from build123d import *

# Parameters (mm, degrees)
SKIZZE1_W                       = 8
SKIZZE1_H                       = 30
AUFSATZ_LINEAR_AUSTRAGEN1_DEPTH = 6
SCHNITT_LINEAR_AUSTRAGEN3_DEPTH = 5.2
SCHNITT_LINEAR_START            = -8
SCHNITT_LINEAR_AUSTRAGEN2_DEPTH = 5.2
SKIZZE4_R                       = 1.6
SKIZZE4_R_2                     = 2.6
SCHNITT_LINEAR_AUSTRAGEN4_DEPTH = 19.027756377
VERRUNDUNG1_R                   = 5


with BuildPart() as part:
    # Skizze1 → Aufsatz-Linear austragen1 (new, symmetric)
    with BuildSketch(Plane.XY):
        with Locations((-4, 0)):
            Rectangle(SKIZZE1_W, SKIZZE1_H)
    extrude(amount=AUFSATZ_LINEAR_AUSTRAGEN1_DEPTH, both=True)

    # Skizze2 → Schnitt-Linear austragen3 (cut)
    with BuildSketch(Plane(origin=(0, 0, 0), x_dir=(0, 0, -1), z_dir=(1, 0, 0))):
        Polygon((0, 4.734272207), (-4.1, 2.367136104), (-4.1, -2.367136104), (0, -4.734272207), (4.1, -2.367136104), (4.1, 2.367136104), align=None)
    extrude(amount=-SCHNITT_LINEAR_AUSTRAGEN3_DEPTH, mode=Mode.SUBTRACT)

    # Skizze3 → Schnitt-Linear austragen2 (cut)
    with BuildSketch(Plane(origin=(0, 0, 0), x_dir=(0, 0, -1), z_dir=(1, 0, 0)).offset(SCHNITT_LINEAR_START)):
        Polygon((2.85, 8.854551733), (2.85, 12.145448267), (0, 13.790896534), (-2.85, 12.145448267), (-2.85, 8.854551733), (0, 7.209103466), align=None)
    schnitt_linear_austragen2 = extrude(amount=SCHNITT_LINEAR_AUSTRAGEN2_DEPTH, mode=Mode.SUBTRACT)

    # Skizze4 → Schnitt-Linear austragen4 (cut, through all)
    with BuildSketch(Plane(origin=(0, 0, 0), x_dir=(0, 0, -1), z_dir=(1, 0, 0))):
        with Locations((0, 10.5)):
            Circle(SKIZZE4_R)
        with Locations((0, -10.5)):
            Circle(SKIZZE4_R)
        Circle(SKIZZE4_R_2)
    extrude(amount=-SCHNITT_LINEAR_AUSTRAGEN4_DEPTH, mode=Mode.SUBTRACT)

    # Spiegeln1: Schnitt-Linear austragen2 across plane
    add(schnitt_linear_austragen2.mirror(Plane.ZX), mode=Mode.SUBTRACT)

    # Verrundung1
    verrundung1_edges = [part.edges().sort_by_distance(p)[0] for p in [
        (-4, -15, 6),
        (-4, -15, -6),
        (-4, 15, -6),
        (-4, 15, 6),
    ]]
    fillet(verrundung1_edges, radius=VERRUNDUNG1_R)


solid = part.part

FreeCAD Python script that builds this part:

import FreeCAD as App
import Part
import Sketcher
from FreeCAD import Vector
Q = App.Units.Quantity


def edges_at(feature, points):
    """Names of the edges that pass closest to the given points."""
    edges = feature.Shape.Edges
    near = lambda p: min(range(len(edges)), key=lambda i: edges[i].distToShape(Part.Vertex(*p))[0])
    return sorted({f"Edge{near(p) + 1}" for p in points})

doc = App.newDocument("Part")
body = doc.addObject("PartDesign::Body", "Body")

# Sketch on XY plane
sketch1 = body.newObject("Sketcher::SketchObject", "Sketch")
sketch1.AttachmentSupport = (doc.getObject("XY_Plane"), [""])
sketch1.MapMode = "FlatFace"
sketch1.addGeometry([
    Part.LineSegment(Vector(-8, 15, 0), Vector(-8, -15, 0)),
    Part.LineSegment(Vector(-8, -15, 0), Vector(0, -15, 0)),
    Part.LineSegment(Vector(0, -15, 0), Vector(0, 15, 0)),
    Part.LineSegment(Vector(0, 15, 0), Vector(-8, 15, 0)),
], False)
sketch1.addConstraint([
    Sketcher.Constraint("Coincident", 0, 2, 1, 1),
    Sketcher.Constraint("Coincident", 1, 2, 2, 1),
    Sketcher.Constraint("Coincident", 2, 2, 3, 1),
    Sketcher.Constraint("Coincident", 3, 2, 0, 1),
    Sketcher.Constraint("Vertical", 0),
    Sketcher.Constraint("Horizontal", 1),
    Sketcher.Constraint("Vertical", 2),
    Sketcher.Constraint("Horizontal", 3),
    Sketcher.Constraint("Symmetric", 1, 2, 2, 2, -1, 1),
    Sketcher.Constraint("DistanceX", 1, 1, 1, 2, Q("8 mm")),
    Sketcher.Constraint("DistanceY", 0, 2, 0, 1, Q("30 mm")),
])
pad1 = body.newObject("PartDesign::Pad", "Pad")
pad1.Profile = sketch1
pad1.Length = 12
pad1.Midplane = True

# Sketch on YZ plane
sketch2 = body.newObject("Sketcher::SketchObject", "Sketch001")
sketch2.AttachmentSupport = (doc.getObject("YZ_Plane"), [""])
sketch2.MapMode = "FlatFace"
sketch2.addGeometry([
    Part.LineSegment(Vector(4.7, 0, 0), Vector(2.4, 4.1, 0)),  # 0
    Part.LineSegment(Vector(2.4, 4.1, 0), Vector(-2.4, 4.1, 0)),  # 1
    Part.LineSegment(Vector(-2.4, 4.1, 0), Vector(-4.7, 0, 0)),  # 2
    Part.LineSegment(Vector(-4.7, 0, 0), Vector(-2.4, -4.1, 0)),  # 3
    Part.LineSegment(Vector(-2.4, -4.1, 0), Vector(2.4, -4.1, 0)),  # 4
    Part.LineSegment(Vector(2.4, -4.1, 0), Vector(4.7, 0, 0)),  # 5
], False)
sketch2.addConstraint([
    Sketcher.Constraint("Coincident", 0, 2, 1, 1),
    Sketcher.Constraint("Coincident", 1, 2, 2, 1),
    Sketcher.Constraint("Coincident", 2, 2, 3, 1),
    Sketcher.Constraint("Coincident", 3, 2, 4, 1),
    Sketcher.Constraint("Coincident", 4, 2, 5, 1),
    Sketcher.Constraint("Coincident", 5, 2, 0, 1),
    Sketcher.Constraint("Horizontal", 1),
    Sketcher.Constraint("Horizontal", 4),
    Sketcher.Constraint("Symmetric", 0, 2, 3, 2, -1, 1),
    Sketcher.Constraint("Symmetric", 2, 2, 5, 2, -1, 1),
    Sketcher.Constraint("PointOnObject", 2, 2, -1),
    Sketcher.Constraint("Parallel", 2, 5),
    Sketcher.Constraint("Vertical", 1, 2, 3, 2),
    Sketcher.Constraint("Angle", 0, Q("120 deg")),
    Sketcher.Constraint("DistanceY", -1, 1, 0, 2, Q("4.1 mm")),
    Sketcher.Constraint("DistanceX", 1, 2, 1, 1, Q("4.734272 mm")),
])
pocket1 = body.newObject("PartDesign::Pocket", "Pocket")
pocket1.Profile = sketch2
pocket1.Length = 5.2

# Sketch on YZ plane
sketch3 = body.newObject("Sketcher::SketchObject", "Sketch002")
sketch3.AttachmentSupport = (doc.getObject("YZ_Plane"), [""])
sketch3.MapMode = "FlatFace"
sketch3.AttachmentOffset = App.Placement(Vector(0, 0, -8), App.Rotation())
sketch3.addGeometry([
    Part.LineSegment(Vector(8.9, -2.9, 0), Vector(12.1, -2.9, 0)),  # 0
    Part.LineSegment(Vector(12.1, -2.9, 0), Vector(13.8, 0, 0)),  # 1
    Part.LineSegment(Vector(13.8, 0, 0), Vector(12.1, 2.9, 0)),  # 2
    Part.LineSegment(Vector(12.1, 2.9, 0), Vector(8.9, 2.9, 0)),  # 3
    Part.LineSegment(Vector(8.9, 2.9, 0), Vector(7.2, 0, 0)),  # 4
    Part.LineSegment(Vector(7.2, 0, 0), Vector(8.9, -2.9, 0)),  # 5
], False)
sketch3.addConstraint([
    Sketcher.Constraint("Coincident", 0, 2, 1, 1),
    Sketcher.Constraint("Coincident", 1, 2, 2, 1),
    Sketcher.Constraint("Coincident", 2, 2, 3, 1),
    Sketcher.Constraint("Coincident", 3, 2, 4, 1),
    Sketcher.Constraint("Coincident", 4, 2, 5, 1),
    Sketcher.Constraint("Coincident", 5, 2, 0, 1),
    Sketcher.Constraint("Horizontal", 0),
    Sketcher.Constraint("Horizontal", 3),
    Sketcher.Constraint("Symmetric", 0, 2, 2, 2, -1),
    Sketcher.Constraint("PointOnObject", 1, 2, -1),
    Sketcher.Constraint("PointOnObject", 4, 2, -1),
    Sketcher.Constraint("Parallel", 1, 4),
    Sketcher.Constraint("Parallel", 2, 5),
    Sketcher.Constraint("Angle", 1, Q("60 deg")),
    Sketcher.Constraint("DistanceY", 0, 2, 2, 2, Q("5.7 mm")),
    Sketcher.Constraint("DistanceX", 0, 1, 0, 2, Q("3.290897 mm")),
    Sketcher.Constraint("DistanceX", -1, 1, 0, 2, Q("12.145448 mm")),
])
pocket2 = body.newObject("PartDesign::Pocket", "Pocket001")
pocket2.Profile = sketch3
pocket2.Length = 5.2
pocket2.Reversed = True

# Sketch on YZ plane
sketch4 = body.newObject("Sketcher::SketchObject", "Sketch003")
sketch4.AttachmentSupport = (doc.getObject("YZ_Plane"), [""])
sketch4.MapMode = "FlatFace"
sketch4.addGeometry([
    Part.Circle(Vector(10.5, 0, 0), Vector(0, 0, 1), 1.6),
    Part.Circle(Vector(-10.5, 0, 0), Vector(0, 0, 1), 1.6),
    Part.Circle(Vector(0, 0, 0), Vector(0, 0, 1), 2.6),
], False)
sketch4.addConstraint([
    Sketcher.Constraint("Coincident", 2, 3, -1, 1),
    Sketcher.Constraint("Equal", 0, 1),
    Sketcher.Constraint("Symmetric", 0, 3, 1, 3, -1, 1),
    Sketcher.Constraint("PointOnObject", 0, 3, -1),
    Sketcher.Constraint("Diameter", 0, Q("3.2 mm")),
    Sketcher.Constraint("Diameter", 2, Q("5.2 mm")),
    Sketcher.Constraint("DistanceX", 1, 3, 0, 3, Q("21 mm")),
])
pocket3 = body.newObject("PartDesign::Pocket", "Pocket002")
pocket3.Profile = sketch4
pocket3.Type = "ThroughAll"
doc.recompute()

mirrored = body.newObject("PartDesign::Mirrored", "Mirrored")
mirrored.Originals = [pocket2]
mirrored.MirrorPlane = (doc.getObject("XZ_Plane"), [""])
body.Tip = mirrored
doc.recompute()

fillet = body.newObject("PartDesign::Fillet", "Fillet")
fillet.Base = (mirrored, edges_at(mirrored, [
    (-4, -15, 6),
    (-4, -15, -6),
    (-4, 15, -6),
    (-4, 15, 6),
]))
fillet.Radius = 5

doc.recompute()
